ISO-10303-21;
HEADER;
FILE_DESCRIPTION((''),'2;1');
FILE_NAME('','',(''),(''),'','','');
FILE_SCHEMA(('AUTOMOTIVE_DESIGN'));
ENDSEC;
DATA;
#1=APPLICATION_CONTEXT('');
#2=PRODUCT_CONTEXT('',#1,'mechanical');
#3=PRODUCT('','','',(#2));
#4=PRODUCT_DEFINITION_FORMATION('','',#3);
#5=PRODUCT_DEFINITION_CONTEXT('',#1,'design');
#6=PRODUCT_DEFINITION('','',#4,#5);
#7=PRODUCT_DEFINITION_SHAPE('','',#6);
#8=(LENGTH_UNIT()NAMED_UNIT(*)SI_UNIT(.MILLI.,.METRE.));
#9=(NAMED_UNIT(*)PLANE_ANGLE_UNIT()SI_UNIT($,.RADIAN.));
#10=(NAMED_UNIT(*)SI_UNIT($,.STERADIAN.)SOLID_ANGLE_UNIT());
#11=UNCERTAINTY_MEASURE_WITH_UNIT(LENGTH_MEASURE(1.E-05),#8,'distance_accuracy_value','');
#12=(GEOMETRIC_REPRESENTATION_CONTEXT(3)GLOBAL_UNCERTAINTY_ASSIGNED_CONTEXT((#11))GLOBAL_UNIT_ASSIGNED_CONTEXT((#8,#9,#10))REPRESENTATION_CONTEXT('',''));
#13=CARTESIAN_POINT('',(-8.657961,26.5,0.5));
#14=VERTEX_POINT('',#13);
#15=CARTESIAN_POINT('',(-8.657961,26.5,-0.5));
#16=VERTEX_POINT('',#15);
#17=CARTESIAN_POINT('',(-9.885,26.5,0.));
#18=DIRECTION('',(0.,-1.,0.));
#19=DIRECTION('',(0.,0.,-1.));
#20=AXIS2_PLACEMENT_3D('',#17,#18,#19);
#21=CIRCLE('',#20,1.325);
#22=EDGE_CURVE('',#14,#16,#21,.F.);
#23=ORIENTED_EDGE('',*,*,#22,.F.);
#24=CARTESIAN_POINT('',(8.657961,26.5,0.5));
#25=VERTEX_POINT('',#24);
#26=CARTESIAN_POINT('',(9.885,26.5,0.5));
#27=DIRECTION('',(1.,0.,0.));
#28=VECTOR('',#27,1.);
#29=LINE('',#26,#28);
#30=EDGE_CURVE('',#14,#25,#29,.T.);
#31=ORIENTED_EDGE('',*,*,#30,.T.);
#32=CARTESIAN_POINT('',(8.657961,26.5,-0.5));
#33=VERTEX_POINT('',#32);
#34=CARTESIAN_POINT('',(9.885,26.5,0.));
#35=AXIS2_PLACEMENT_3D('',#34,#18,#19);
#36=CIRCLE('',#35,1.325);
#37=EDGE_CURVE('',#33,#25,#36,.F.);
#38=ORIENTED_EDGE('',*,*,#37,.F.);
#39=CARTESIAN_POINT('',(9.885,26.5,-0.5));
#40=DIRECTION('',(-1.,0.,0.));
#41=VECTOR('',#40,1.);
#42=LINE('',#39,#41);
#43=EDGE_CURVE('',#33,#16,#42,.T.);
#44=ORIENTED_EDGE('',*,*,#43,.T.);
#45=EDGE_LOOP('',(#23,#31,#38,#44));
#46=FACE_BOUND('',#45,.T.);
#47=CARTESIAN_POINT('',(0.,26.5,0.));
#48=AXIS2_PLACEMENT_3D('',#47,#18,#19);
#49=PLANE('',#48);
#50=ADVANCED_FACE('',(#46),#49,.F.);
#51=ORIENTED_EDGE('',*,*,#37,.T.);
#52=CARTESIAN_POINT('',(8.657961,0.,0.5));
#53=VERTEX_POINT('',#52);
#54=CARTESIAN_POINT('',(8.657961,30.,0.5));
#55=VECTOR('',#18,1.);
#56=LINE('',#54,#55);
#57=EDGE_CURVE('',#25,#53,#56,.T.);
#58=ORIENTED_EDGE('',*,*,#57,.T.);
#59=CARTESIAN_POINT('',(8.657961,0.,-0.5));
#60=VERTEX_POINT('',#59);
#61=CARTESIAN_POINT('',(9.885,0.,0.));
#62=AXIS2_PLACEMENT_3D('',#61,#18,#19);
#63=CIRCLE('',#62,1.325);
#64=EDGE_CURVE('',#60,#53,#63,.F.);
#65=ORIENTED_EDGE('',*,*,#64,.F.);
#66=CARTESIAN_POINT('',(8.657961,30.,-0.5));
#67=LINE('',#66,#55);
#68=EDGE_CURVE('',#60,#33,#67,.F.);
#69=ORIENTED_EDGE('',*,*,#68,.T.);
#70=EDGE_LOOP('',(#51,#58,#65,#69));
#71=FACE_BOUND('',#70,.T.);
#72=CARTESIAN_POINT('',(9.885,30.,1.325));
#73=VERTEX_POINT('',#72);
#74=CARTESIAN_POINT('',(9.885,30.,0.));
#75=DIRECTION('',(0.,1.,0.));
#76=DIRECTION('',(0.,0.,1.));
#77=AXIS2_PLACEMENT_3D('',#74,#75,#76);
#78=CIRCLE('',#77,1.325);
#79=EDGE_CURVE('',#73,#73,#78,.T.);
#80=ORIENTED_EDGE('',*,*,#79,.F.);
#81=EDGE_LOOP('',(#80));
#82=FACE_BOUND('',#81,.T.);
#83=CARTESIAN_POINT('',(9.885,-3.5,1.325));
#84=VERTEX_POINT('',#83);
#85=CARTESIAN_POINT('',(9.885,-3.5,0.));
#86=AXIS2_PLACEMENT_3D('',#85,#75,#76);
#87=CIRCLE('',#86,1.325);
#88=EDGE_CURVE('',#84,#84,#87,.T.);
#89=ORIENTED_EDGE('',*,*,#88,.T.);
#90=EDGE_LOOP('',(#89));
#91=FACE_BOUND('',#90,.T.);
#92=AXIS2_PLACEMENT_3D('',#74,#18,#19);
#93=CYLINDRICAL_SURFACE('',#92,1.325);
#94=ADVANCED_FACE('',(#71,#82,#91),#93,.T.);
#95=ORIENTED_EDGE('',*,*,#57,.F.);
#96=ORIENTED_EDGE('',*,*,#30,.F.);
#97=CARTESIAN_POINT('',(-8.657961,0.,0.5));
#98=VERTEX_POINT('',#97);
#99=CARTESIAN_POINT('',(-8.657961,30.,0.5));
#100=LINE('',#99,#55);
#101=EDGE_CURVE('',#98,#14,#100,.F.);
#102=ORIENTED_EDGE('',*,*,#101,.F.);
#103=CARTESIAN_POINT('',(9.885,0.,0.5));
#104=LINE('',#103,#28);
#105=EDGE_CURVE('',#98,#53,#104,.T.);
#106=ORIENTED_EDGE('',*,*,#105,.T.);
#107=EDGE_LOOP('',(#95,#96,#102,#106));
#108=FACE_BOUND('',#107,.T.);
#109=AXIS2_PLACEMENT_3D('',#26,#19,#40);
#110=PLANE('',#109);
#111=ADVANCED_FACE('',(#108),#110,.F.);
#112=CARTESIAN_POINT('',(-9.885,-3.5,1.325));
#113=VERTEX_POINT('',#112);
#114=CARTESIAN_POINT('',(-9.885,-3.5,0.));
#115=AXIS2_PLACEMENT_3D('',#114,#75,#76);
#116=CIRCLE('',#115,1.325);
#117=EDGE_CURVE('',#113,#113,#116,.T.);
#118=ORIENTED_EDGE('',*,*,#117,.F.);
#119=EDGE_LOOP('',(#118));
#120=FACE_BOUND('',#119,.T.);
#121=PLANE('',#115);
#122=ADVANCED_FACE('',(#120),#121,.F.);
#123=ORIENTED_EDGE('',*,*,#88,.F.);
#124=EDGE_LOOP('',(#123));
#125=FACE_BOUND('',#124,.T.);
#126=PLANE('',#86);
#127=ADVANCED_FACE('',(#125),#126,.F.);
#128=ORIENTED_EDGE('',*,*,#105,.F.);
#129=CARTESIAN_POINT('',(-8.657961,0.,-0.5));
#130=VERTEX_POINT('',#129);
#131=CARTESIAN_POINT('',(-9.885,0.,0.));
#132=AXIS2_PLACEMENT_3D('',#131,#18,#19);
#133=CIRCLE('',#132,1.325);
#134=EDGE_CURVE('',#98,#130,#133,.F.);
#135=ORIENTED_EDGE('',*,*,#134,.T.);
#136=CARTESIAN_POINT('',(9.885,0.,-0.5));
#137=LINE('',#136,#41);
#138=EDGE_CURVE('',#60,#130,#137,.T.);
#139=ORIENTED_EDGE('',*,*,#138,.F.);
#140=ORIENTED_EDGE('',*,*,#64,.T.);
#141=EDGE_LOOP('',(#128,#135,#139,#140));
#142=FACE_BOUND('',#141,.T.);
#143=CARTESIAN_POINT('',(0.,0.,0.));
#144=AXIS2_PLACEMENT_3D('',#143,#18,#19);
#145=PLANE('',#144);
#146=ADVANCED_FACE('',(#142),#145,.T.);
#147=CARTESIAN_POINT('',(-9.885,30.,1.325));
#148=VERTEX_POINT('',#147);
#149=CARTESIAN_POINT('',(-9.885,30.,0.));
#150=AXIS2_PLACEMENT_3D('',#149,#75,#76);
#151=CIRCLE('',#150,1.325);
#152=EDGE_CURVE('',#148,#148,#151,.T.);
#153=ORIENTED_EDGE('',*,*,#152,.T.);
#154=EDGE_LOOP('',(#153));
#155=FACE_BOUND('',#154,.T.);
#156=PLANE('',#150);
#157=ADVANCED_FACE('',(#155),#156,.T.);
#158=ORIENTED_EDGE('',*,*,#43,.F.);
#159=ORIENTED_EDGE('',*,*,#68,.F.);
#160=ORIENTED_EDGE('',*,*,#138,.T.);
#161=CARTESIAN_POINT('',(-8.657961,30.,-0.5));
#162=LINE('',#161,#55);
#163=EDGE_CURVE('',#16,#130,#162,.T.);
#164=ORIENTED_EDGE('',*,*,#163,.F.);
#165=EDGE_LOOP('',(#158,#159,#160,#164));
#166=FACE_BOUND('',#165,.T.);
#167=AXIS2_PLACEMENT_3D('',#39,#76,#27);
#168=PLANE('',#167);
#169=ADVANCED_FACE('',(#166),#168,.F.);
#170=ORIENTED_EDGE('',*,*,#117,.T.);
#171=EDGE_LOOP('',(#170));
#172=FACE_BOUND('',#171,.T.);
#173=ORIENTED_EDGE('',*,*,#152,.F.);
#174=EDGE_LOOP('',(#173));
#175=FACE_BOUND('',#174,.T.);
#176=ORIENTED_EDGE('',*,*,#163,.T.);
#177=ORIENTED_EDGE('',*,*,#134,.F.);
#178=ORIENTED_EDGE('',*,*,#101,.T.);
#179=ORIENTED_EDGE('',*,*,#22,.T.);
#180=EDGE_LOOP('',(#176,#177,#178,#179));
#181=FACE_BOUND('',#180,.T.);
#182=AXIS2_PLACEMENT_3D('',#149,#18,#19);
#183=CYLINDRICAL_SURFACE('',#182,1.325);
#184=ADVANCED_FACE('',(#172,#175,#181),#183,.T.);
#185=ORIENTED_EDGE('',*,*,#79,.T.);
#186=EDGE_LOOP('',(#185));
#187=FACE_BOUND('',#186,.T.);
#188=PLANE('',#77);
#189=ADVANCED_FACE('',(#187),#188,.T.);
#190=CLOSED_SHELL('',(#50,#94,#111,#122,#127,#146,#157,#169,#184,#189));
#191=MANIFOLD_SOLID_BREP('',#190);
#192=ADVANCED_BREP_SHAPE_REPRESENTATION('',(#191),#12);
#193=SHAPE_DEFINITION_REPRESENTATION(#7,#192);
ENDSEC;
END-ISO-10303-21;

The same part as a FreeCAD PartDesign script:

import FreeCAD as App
import Part
import Sketcher
from FreeCAD import Vector
Q = App.Units.Quantity

doc = App.newDocument("Part")
params = doc.addObject("Spreadsheet::Sheet", "Params")
for row, (alias, value) in enumerate([
    ("sketch1_height", "1 mm"),
    ("sketch1_width", "19.77 mm"),
    ("pad1_length", "26.5 mm"),
    ("sketch2_diameter", "2.65 mm"),
    ("pad2_length", "33.5 mm"),
], start=1):
    params.set(f"A{row}", alias)
    params.set(f"B{row}", "=" + value)
    params.setAlias(f"B{row}", alias)

body = doc.addObject("PartDesign::Body", "Body")

# Sketch on XZ plane
sketch1 = doc.addObject("Sketcher::SketchObject", "Sketch")
body.addObject(sketch1)
sketch1.AttachmentSupport = (doc.XZ_Plane, [""])
sketch1.MapMode = "FlatFace"
sketch1.addGeometry([
    Part.LineSegment(Vector(-9.9, -0.5, 0), Vector(-9.9, 0.5, 0)),
    Part.LineSegment(Vector(-9.9, 0.5, 0), Vector(9.9, 0.5, 0)),
    Part.LineSegment(Vector(9.9, 0.5, 0), Vector(9.9, -0.5, 0)),
    Part.LineSegment(Vector(9.9, -0.5, 0), Vector(-9.9, -0.5, 0)),
], False)
sketch1.addConstraint([
    Sketcher.Constraint("Coincident", 0, 2, 1, 1),
    Sketcher.Constraint("Coincident", 1, 2, 2, 1),
    Sketcher.Constraint("Coincident", 2, 2, 3, 1),
    Sketcher.Constraint("Coincident", 3, 2, 0, 1),
    Sketcher.Constraint("Vertical", 0),
    Sketcher.Constraint("Horizontal", 1),
    Sketcher.Constraint("Vertical", 2),
    Sketcher.Constraint("Horizontal", 3),
    Sketcher.Constraint("Symmetric", 0, 2, 2, 2, -1, 1),
    Sketcher.Constraint("DistanceY", 0, 1, 0, 2, Q("1 mm")),
    Sketcher.Constraint("DistanceX", 1, 1, 1, 2, Q("19.77 mm")),
])
sketch1.setExpression("Constraints[9]", "Params.sketch1_height")
sketch1.setExpression("Constraints[10]", "Params.sketch1_width")
pad1 = doc.addObject("PartDesign::Pad", "Pad")
body.addObject(pad1)
pad1.Profile = sketch1
pad1.setExpression("Length", "Params.pad1_length")
pad1.Reversed = True

# Sketch on XZ plane
sketch2 = doc.addObject("Sketcher::SketchObject", "Sketch001")
body.addObject(sketch2)
sketch2.AttachmentSupport = (doc.XZ_Plane, [""])
sketch2.MapMode = "FlatFace"
sketch2.AttachmentOffset = App.Placement(Vector(0, 0, -13.25), App.Rotation())
sketch2.addGeometry([
    Part.Circle(Vector(-9.9, 0, 0), Vector(0, 0, 1), 1.3),
    Part.Circle(Vector(9.9, 0, 0), Vector(0, 0, 1), 1.3),
], False)
sketch2.addConstraint([
    Sketcher.Constraint("Equal", 0, 1),
    Sketcher.Constraint("Symmetric", 0, 3, 1, 3, -1, 1),
    Sketcher.Constraint("PointOnObject", 0, 3, -1),
    Sketcher.Constraint("Diameter", 0, Q("2.65 mm")),
    Sketcher.Constraint("DistanceX", 0, 3, 1, 3, Q("19.77 mm")),
])
sketch2.setExpression("Constraints[3]", "Params.sketch2_diameter")
pad2 = doc.addObject("PartDesign::Pad", "Pad001")
body.addObject(pad2)
pad2.Profile = sketch2
pad2.setExpression("Length", "Params.pad2_length")
pad2.Midplane = True

doc.recompute()
